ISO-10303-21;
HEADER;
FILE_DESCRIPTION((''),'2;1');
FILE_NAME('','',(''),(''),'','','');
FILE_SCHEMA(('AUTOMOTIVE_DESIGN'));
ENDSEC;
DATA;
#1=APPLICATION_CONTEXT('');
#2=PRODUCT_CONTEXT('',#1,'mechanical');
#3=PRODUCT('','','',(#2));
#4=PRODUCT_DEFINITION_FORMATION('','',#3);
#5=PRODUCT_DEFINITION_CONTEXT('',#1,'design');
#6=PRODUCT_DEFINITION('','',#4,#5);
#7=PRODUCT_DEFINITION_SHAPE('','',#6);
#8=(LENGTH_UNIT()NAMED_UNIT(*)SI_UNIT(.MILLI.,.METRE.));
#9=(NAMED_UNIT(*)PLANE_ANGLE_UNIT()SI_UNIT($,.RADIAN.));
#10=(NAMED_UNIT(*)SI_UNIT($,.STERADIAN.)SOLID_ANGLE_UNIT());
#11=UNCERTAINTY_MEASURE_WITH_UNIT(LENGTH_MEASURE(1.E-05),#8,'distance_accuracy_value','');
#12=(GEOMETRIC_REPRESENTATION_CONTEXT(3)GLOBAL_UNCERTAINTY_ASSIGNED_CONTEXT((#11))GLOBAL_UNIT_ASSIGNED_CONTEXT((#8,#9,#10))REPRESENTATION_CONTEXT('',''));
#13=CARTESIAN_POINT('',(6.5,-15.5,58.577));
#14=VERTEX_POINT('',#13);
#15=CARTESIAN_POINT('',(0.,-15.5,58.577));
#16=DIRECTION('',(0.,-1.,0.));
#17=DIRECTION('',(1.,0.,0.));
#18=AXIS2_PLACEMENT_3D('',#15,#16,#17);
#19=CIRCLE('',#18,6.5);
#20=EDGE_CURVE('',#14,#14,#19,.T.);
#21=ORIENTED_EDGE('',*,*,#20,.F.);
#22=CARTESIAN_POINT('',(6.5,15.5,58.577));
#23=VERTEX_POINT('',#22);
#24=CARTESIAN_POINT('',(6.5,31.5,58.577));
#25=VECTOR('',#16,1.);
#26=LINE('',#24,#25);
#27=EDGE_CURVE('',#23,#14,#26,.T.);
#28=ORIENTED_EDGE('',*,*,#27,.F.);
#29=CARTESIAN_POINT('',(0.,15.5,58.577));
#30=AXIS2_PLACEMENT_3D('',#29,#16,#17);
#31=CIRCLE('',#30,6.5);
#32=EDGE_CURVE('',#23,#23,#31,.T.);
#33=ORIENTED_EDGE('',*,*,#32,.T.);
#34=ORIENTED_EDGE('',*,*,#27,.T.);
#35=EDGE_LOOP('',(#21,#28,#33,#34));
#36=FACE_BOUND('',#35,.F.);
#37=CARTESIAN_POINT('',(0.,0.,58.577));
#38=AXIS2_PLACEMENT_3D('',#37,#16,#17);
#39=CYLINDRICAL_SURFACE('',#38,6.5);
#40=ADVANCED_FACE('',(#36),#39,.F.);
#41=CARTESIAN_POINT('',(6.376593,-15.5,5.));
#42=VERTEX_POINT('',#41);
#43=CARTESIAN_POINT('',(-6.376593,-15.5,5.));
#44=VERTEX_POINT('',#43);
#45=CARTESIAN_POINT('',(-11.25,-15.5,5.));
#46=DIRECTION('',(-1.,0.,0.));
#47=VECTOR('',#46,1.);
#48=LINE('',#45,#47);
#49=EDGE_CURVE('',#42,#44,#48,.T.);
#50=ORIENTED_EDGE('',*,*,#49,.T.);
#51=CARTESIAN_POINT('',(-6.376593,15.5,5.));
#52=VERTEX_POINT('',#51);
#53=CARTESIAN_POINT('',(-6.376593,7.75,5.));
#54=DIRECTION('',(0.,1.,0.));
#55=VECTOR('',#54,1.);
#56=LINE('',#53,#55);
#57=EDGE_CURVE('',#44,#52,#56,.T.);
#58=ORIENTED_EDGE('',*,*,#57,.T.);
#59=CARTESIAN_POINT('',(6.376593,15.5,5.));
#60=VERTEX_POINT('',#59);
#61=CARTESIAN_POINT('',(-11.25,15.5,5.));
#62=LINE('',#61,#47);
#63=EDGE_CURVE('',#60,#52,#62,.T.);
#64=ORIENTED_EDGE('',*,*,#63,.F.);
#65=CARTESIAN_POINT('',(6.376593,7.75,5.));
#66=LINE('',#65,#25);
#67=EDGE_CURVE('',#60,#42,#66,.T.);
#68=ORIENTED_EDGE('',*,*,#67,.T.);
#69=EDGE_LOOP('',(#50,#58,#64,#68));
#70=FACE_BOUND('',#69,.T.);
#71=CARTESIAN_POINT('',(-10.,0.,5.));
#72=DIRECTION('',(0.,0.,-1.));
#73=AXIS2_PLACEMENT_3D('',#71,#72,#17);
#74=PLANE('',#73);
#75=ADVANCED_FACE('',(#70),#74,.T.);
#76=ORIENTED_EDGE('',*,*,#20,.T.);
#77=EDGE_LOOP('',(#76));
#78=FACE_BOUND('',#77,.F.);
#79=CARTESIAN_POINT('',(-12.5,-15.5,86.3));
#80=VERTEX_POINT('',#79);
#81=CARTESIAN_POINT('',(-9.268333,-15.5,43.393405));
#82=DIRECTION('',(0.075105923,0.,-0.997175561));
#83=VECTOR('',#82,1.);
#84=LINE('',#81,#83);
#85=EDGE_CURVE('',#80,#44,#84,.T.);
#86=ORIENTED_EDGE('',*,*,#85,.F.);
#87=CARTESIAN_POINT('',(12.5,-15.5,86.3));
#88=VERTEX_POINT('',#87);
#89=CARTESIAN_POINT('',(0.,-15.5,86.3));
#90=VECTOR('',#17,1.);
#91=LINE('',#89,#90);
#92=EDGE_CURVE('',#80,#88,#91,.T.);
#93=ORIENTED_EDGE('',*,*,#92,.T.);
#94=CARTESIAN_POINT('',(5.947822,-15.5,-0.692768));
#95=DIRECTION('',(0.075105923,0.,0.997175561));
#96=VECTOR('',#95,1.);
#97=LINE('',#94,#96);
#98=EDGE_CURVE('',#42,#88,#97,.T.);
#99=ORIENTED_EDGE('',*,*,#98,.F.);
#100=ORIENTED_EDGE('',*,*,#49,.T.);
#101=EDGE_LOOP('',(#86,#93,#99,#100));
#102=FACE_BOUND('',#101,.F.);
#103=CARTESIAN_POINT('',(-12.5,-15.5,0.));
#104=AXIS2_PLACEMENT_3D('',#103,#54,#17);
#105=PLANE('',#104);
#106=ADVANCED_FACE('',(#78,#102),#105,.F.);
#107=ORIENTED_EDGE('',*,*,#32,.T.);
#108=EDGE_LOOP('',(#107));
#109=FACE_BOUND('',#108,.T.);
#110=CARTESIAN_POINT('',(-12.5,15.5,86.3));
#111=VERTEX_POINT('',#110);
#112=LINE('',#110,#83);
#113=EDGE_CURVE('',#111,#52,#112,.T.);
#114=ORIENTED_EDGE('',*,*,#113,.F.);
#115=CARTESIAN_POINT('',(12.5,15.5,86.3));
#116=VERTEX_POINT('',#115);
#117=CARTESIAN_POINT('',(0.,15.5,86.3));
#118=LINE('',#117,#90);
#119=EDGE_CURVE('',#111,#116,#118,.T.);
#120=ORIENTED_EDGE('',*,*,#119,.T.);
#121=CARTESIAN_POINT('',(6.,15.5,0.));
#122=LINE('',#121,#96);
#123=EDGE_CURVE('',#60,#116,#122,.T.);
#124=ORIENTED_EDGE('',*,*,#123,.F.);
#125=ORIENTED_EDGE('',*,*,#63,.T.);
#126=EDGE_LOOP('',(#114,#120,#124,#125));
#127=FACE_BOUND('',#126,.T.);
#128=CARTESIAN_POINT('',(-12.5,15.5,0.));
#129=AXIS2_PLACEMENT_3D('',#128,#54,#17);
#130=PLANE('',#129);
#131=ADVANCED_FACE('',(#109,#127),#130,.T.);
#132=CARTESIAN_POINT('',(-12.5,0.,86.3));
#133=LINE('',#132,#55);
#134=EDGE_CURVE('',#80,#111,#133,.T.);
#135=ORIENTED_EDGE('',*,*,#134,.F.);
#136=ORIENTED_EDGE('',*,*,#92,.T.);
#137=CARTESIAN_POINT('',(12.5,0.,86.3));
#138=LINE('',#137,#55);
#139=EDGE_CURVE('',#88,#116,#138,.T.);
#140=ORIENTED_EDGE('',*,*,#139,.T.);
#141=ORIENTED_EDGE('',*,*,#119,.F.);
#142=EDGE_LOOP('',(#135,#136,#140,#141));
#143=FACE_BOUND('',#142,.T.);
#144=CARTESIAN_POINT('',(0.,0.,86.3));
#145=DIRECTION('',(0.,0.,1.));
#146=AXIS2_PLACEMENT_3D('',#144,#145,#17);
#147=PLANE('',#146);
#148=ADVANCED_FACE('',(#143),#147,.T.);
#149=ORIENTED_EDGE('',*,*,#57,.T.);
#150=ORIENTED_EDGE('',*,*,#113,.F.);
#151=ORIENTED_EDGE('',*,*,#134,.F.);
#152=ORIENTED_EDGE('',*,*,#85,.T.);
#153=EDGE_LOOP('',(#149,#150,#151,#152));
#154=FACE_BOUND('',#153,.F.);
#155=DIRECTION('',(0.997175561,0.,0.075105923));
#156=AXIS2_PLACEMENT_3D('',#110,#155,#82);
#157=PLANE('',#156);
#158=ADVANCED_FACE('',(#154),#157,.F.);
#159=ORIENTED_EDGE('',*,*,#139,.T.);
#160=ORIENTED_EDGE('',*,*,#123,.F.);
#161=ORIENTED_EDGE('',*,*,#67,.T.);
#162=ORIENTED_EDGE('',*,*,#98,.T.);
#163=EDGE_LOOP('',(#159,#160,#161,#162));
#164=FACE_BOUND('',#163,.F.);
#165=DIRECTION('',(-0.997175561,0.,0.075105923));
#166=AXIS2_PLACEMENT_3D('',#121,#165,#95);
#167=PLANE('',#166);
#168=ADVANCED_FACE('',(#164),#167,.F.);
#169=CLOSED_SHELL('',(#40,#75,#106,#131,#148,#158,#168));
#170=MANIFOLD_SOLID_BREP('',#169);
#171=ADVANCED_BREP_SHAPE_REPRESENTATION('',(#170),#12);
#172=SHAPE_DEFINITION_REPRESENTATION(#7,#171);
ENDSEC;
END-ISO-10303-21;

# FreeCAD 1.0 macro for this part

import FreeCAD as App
import Part
import Sketcher
from FreeCAD import Vector
Q = App.Units.Quantity

doc = App.newDocument("Part")
params = doc.addObject("Spreadsheet::Sheet", "Params")
for row, (alias, value) in enumerate([
    ("sketch1_width", "25 mm"),
    ("sketch1_height", "31 mm"),
    ("pad1_length", "86.3 mm"),
    ("sketch2_diameter", "13 mm"),
    ("pocket1_length", "63 mm"),
    ("sketch3_width", "6.5 mm"),
    ("sketch3_height", "86.3 mm"),
    ("sketch4_width", "20 mm"),
    ("sketch4_height", "5 mm"),
    ("pocket3_length", "100 mm"),
], start=1):
    params.set(f"A{row}", alias)
    params.set(f"B{row}", "=" + value)
    params.setAlias(f"B{row}", alias)

body = doc.addObject("PartDesign::Body", "Body")

# Sketch on XY plane
sketch1 = body.newObject("Sketcher::SketchObject", "Sketch")
sketch1.AttachmentSupport = (doc.getObject("XY_Plane"), [""])
sketch1.MapMode = "FlatFace"
sketch1.addGeometry([
    Part.LineSegment(Vector(-12, 16, 0), Vector(-12, -16, 0)),
    Part.LineSegment(Vector(-12, -16, 0), Vector(12, -16, 0)),
    Part.LineSegment(Vector(12, -16, 0), Vector(12, 16, 0)),
    Part.LineSegment(Vector(12, 16, 0), Vector(-12, 16, 0)),
], False)
sketch1.addConstraint([
    Sketcher.Constraint("Coincident", 0, 2, 1, 1),
    Sketcher.Constraint("Coincident", 1, 2, 2, 1),
    Sketcher.Constraint("Coincident", 2, 2, 3, 1),
    Sketcher.Constraint("Coincident", 3, 2, 0, 1),
    Sketcher.Constraint("Vertical", 0),
    Sketcher.Constraint("Horizontal", 1),
    Sketcher.Constraint("Vertical", 2),
    Sketcher.Constraint("Horizontal", 3),
    Sketcher.Constraint("Symmetric", 0, 2, 2, 2, -1, 1),
    Sketcher.Constraint("DistanceX", 1, 1, 1, 2, Q("25 mm")),
    Sketcher.Constraint("DistanceY", 0, 2, 0, 1, Q("31 mm")),
])
sketch1.setExpression("Constraints[9]", "Params.sketch1_width")
sketch1.setExpression("Constraints[10]", "Params.sketch1_height")
pad1 = body.newObject("PartDesign::Pad", "Pad")
pad1.Profile = sketch1
pad1.setExpression("Length", "Params.pad1_length")

# Sketch on XZ plane
sketch2 = body.newObject("Sketcher::SketchObject", "Sketch001")
sketch2.AttachmentSupport = (doc.getObject("XZ_Plane"), [""])
sketch2.MapMode = "FlatFace"
sketch2.addGeometry(Part.Circle(Vector(0, 59, 0), Vector(0, 0, 1), 6), False)
sketch2.addConstraint([
    Sketcher.Constraint("PointOnObject", 0, 3, -2),
    Sketcher.Constraint("Diameter", 0, Q("13 mm")),
    Sketcher.Constraint("DistanceY", -1, 1, 0, 3, Q("58.577 mm")),
])
sketch2.setExpression("Constraints[1]", "Params.sketch2_diameter")
pocket1 = body.newObject("PartDesign::Pocket", "Pocket")
pocket1.Profile = sketch2
pocket1.setExpression("Length", "Params.pocket1_length")
pocket1.Midplane = True

# Sketch on XZ plane
sketch3 = body.newObject("Sketcher::SketchObject", "Sketch002")
sketch3.AttachmentSupport = (doc.getObject("XZ_Plane"), [""])
sketch3.MapMode = "FlatFace"
sketch3.AttachmentOffset = App.Placement(Vector(0, 0, -15.5), App.Rotation())
sketch3.addGeometry([
    Part.LineSegment(Vector(-12, 0, 0), Vector(-12, 86, 0)),  # 0
    Part.LineSegment(Vector(-12, 86, 0), Vector(-6, 0, 0)),  # 1
    Part.LineSegment(Vector(-6, 0, 0), Vector(-12, 0, 0)),  # 2
    Part.LineSegment(Vector(6, 0, 0), Vector(12, 86, 0)),  # 3
    Part.LineSegment(Vector(12, 86, 0), Vector(12, 0, 0)),  # 4
    Part.LineSegment(Vector(12, 0, 0), Vector(6, 0, 0)),  # 5
], False)
sketch3.addConstraint([
    Sketcher.Constraint("Coincident", 0, 2, 1, 1),
    Sketcher.Constraint("Coincident", 1, 2, 2, 1),
    Sketcher.Constraint("Coincident", 2, 2, 0, 1),
    Sketcher.Constraint("Coincident", 3, 2, 4, 1),
    Sketcher.Constraint("Coincident", 4, 2, 5, 1),
    Sketcher.Constraint("Coincident", 5, 2, 3, 1),
    Sketcher.Constraint("Vertical", 0),
    Sketcher.Constraint("Horizontal", 2),
    Sketcher.Constraint("Vertical", 4),
    Sketcher.Constraint("Horizontal", 5),
    Sketcher.Constraint("Symmetric", 2, 2, 4, 2, -1, 1),
    Sketcher.Constraint("Symmetric", 1, 2, 5, 2, -2),
    Sketcher.Constraint("Horizontal", 0, 2, 3, 2),
    Sketcher.Constraint("DistanceX", 2, 2, 2, 1, Q("6.5 mm")),
    Sketcher.Constraint("DistanceY", 0, 1, 0, 2, Q("86.3 mm")),
    Sketcher.Constraint("DistanceX", 1, 2, -1, 1, Q("6 mm")),
])
sketch3.setExpression("Constraints[13]", "Params.sketch3_width")
sketch3.setExpression("Constraints[14]", "Params.sketch3_height")
pocket2 = body.newObject("PartDesign::Pocket", "Pocket001")
pocket2.Profile = sketch3
pocket2.Type = "ThroughAll"
pocket2.Reversed = True

# Sketch on XZ plane
sketch4 = body.newObject("Sketcher::SketchObject", "Sketch003")
sketch4.AttachmentSupport = (doc.getObject("XZ_Plane"), [""])
sketch4.MapMode = "FlatFace"
sketch4.addGeometry([
    Part.LineSegment(Vector(-10, 5, 0), Vector(-10, 0, 0)),
    Part.LineSegment(Vector(-10, 0, 0), Vector(10, 0, 0)),
    Part.LineSegment(Vector(10, 0, 0), Vector(10, 5, 0)),
    Part.LineSegment(Vector(10, 5, 0), Vector(-10, 5, 0)),
], False)
sketch4.addConstraint([
    Sketcher.Constraint("Coincident", 0, 2, 1, 1),
    Sketcher.Constraint("Coincident", 1, 2, 2, 1),
    Sketcher.Constraint("Coincident", 2, 2, 3, 1),
    Sketcher.Constraint("Coincident", 3, 2, 0, 1),
    Sketcher.Constraint("Vertical", 0),
    Sketcher.Constraint("Horizontal", 1),
    Sketcher.Constraint("Vertical", 2),
    Sketcher.Constraint("Horizontal", 3),
    Sketcher.Constraint("Symmetric", 0, 2, 1, 2, -1, 1),
    Sketcher.Constraint("DistanceX", 1, 1, 1, 2, Q("20 mm")),
    Sketcher.Constraint("DistanceY", 0, 2, 0, 1, Q("5 mm")),
])
sketch4.setExpression("Constraints[9]", "Params.sketch4_width")
sketch4.setExpression("Constraints[10]", "Params.sketch4_height")
pocket3 = body.newObject("PartDesign::Pocket", "Pocket002")
pocket3.Profile = sketch4
pocket3.setExpression("Length", "Params.pocket3_length")
pocket3.Midplane = True

doc.recompute()
